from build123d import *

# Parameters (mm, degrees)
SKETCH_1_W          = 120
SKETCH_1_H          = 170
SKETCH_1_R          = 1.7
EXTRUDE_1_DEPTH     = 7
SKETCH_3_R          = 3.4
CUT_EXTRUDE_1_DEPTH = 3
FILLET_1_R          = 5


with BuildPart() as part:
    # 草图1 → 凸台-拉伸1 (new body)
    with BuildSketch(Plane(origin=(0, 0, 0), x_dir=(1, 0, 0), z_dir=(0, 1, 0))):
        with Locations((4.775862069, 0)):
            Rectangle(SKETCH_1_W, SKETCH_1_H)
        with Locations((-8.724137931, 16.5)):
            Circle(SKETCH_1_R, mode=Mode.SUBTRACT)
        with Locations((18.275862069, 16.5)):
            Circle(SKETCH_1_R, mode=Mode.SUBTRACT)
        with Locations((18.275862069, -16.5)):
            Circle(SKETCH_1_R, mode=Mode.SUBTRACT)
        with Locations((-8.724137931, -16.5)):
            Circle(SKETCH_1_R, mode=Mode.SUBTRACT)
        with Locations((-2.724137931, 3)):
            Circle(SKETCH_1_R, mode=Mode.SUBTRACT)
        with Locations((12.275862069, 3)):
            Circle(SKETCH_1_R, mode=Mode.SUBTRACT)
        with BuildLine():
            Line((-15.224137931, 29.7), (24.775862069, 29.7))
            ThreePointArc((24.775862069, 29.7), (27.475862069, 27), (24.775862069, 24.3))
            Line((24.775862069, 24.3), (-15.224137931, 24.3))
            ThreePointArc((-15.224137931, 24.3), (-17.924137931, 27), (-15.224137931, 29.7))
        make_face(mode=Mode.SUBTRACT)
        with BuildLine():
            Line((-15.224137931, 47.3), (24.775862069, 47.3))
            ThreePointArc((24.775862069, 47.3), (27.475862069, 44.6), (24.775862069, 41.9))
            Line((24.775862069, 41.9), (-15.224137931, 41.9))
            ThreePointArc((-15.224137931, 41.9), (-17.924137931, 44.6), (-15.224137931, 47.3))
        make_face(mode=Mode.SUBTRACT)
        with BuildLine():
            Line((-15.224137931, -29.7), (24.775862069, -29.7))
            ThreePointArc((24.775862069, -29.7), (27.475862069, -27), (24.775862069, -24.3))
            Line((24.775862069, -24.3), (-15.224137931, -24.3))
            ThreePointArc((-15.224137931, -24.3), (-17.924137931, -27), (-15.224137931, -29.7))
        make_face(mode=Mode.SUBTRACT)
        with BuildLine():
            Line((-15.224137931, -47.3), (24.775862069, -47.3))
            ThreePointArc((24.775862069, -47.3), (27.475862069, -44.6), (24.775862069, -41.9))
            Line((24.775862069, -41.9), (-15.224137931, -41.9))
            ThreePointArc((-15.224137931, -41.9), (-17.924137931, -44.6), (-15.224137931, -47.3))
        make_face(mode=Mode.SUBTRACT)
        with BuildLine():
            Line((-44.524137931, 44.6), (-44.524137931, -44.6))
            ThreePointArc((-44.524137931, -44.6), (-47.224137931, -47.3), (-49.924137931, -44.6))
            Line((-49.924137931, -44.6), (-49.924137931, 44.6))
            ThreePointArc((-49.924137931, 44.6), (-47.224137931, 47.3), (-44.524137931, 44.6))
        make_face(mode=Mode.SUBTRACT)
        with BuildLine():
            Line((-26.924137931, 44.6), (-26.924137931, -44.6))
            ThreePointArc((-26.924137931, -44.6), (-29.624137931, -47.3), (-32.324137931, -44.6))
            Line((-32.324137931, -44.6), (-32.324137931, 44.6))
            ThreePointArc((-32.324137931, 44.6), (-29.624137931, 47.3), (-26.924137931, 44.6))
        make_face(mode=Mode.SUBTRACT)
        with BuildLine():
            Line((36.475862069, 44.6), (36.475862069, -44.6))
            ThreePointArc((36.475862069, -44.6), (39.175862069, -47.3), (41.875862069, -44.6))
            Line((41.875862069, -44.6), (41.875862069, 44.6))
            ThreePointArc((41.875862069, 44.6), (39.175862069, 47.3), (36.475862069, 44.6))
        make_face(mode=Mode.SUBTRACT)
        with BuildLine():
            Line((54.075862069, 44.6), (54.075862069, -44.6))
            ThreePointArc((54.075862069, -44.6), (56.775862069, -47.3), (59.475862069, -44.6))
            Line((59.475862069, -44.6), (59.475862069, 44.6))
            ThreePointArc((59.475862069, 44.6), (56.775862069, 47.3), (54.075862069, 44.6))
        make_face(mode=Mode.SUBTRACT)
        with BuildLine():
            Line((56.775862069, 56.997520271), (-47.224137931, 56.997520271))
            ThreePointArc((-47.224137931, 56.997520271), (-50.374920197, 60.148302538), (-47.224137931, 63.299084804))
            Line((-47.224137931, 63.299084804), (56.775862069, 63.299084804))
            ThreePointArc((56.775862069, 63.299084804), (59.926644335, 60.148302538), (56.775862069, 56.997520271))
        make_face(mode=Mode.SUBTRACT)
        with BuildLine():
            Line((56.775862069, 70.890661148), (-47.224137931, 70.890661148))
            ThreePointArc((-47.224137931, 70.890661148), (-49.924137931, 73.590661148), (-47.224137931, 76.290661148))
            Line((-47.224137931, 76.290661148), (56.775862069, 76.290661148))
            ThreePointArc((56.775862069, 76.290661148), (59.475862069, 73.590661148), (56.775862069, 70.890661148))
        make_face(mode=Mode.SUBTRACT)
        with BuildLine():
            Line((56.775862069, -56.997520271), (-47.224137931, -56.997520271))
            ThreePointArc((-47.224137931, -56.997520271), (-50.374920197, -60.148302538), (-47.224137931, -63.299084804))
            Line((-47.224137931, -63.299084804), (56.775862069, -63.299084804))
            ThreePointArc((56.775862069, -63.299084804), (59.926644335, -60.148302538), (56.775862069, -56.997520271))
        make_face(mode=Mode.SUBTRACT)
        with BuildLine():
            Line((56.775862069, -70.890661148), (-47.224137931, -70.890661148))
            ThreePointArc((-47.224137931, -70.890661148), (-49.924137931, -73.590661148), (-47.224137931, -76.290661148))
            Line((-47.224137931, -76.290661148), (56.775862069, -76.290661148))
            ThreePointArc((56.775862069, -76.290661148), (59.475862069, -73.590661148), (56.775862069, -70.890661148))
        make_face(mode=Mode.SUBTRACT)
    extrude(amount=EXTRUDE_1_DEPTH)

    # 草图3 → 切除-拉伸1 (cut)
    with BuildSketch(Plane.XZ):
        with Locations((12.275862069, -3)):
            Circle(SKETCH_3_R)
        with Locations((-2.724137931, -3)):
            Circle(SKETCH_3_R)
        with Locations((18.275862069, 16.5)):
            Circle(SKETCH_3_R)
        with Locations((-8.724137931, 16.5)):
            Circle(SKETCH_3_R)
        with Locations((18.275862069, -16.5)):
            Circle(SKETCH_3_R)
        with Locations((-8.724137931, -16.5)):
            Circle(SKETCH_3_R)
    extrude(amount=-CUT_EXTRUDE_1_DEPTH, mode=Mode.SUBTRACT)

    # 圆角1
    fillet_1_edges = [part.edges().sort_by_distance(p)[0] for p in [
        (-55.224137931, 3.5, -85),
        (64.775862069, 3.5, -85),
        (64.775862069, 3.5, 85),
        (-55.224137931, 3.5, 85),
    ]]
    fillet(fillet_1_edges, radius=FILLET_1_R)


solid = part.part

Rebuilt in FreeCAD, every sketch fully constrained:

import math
import FreeCAD as App
import Part
import Sketcher

V = App.Vector
Q = App.Units.Quantity


def edges_at(feature, points):
    """Names of the edges that pass closest to the given points."""
    edges = feature.Shape.Edges
    near = lambda p: min(range(len(edges)), key=lambda i: edges[i].distToShape(Part.Vertex(*p))[0])
    return sorted({f"Edge{near(p) + 1}" for p in points})

doc = App.newDocument("Part")
body = doc.addObject("PartDesign::Body", "Body")

# Sketch on XZ plane
sketch1 = doc.addObject("Sketcher::SketchObject", "Sketch")
body.addObject(sketch1)
sketch1.AttachmentSupport = (doc.XZ_Plane, [""])
sketch1.MapMode = "FlatFace"
sketch1.addGeometry([
    Part.LineSegment(V(-55.2, -85, 0), V(-55.2, 85, 0)),  # 0
    Part.LineSegment(V(-55.2, 85, 0), V(64.8, 85, 0)),  # 1
    Part.LineSegment(V(64.8, 85, 0), V(64.8, -85, 0)),  # 2
    Part.LineSegment(V(64.8, -85, 0), V(-55.2, -85, 0)),  # 3
    Part.Circle(V(-8.7, 16.5, 0), V(0, 0, 1), 1.7),  # 4
    Part.LineSegment(V(-47.2, 70.9, 0), V(56.8, 70.9, 0)),  # 5
    Part.ArcOfCircle(Part.Circle(V(56.8, 73.6, 0), V(0, 0, 1), 2.7), math.radians(-90), math.radians(90)),  # 6
    Part.LineSegment(V(56.8, 76.3, 0), V(-47.2, 76.3, 0)),  # 7
    Part.ArcOfCircle(Part.Circle(V(-47.2, 73.6, 0), V(0, 0, 1), 2.7), math.radians(90), math.radians(270)),  # 8
    Part.LineSegment(V(-47.2, 57, 0), V(56.8, 57, 0)),  # 9
    Part.ArcOfCircle(Part.Circle(V(56.8, 60.1, 0), V(0, 0, 1), 3.2), math.radians(-90), math.radians(90)),  # 10
    Part.LineSegment(V(56.8, 63.3, 0), V(-47.2, 63.3, 0)),  # 11
    Part.ArcOfCircle(Part.Circle(V(-47.2, 60.1, 0), V(0, 0, 1), 3.2), math.radians(90), math.radians(270)),  # 12
    Part.LineSegment(V(24.8, 47.3, 0), V(-15.2, 47.3, 0)),  # 13
    Part.ArcOfCircle(Part.Circle(V(-15.2, 44.6, 0), V(0, 0, 1), 2.7), math.radians(90), math.radians(270)),  # 14
    Part.LineSegment(V(-15.2, 41.9, 0), V(24.8, 41.9, 0)),  # 15
    Part.ArcOfCircle(Part.Circle(V(24.8, 44.6, 0), V(0, 0, 1), 2.7), math.radians(-90), math.radians(90)),  # 16
    Part.LineSegment(V(24.8, 29.7, 0), V(-15.2, 29.7, 0)),  # 17
    Part.ArcOfCircle(Part.Circle(V(-15.2, 27, 0), V(0, 0, 1), 2.7), math.radians(90), math.radians(270)),  # 18
    Part.LineSegment(V(-15.2, 24.3, 0), V(24.8, 24.3, 0)),  # 19
    Part.ArcOfCircle(Part.Circle(V(24.8, 27, 0), V(0, 0, 1), 2.7), math.radians(-90), math.radians(90)),  # 20
    Part.Circle(V(18.3, 16.5, 0), V(0, 0, 1), 1.7),  # 21
    Part.ArcOfCircle(Part.Circle(V(-47.2, -44.6, 0), V(0, 0, 1), 2.7), math.radians(180), math.radians(360)),  # 22
    Part.LineSegment(V(-44.5, -44.6, 0), V(-44.5, 44.6, 0)),  # 23
    Part.ArcOfCircle(Part.Circle(V(-47.2, 44.6, 0), V(0, 0, 1), 2.7), math.radians(0), math.radians(180)),  # 24
    Part.LineSegment(V(-49.9, 44.6, 0), V(-49.9, -44.6, 0)),  # 25
    Part.ArcOfCircle(Part.Circle(V(-29.6, -44.6, 0), V(0, 0, 1), 2.7), math.radians(180), math.radians(360)),  # 26
    Part.LineSegment(V(-26.9, -44.6, 0), V(-26.9, 44.6, 0)),  # 27
    Part.ArcOfCircle(Part.Circle(V(-29.6, 44.6, 0), V(0, 0, 1), 2.7), math.radians(0), math.radians(180)),  # 28
    Part.LineSegment(V(-32.3, 44.6, 0), V(-32.3, -44.6, 0)),  # 29
    Part.Circle(V(-2.7, -3, 0), V(0, 0, 1), 1.7),  # 30
    Part.Circle(V(-8.7, -16.5, 0), V(0, 0, 1), 1.7),  # 31
    Part.Circle(V(12.3, -3, 0), V(0, 0, 1), 1.7),  # 32
    Part.Circle(V(18.3, -16.5, 0), V(0, 0, 1), 1.7),  # 33
    Part.ArcOfCircle(Part.Circle(V(-15.2, -27, 0), V(0, 0, 1), 2.7), math.radians(90), math.radians(270)),  # 34
    Part.LineSegment(V(-15.2, -29.7, 0), V(24.8, -29.7, 0)),  # 35
    Part.ArcOfCircle(Part.Circle(V(24.8, -27, 0), V(0, 0, 1), 2.7), math.radians(-90), math.radians(90)),  # 36
    Part.LineSegment(V(24.8, -24.3, 0), V(-15.2, -24.3, 0)),  # 37
    Part.LineSegment(V(36.5, 44.6, 0), V(36.5, -44.6, 0)),  # 38
    Part.ArcOfCircle(Part.Circle(V(39.2, -44.6, 0), V(0, 0, 1), 2.7), math.radians(180), math.radians(360)),  # 39
    Part.LineSegment(V(41.9, -44.6, 0), V(41.9, 44.6, 0)),  # 40
    Part.ArcOfCircle(Part.Circle(V(39.2, 44.6, 0), V(0, 0, 1), 2.7), math.radians(0), math.radians(180)),  # 41
    Part.LineSegment(V(54.1, 44.6, 0), V(54.1, -44.6, 0)),  # 42
    Part.ArcOfCircle(Part.Circle(V(56.8, -44.6, 0), V(0, 0, 1), 2.7), math.radians(180), math.radians(360)),  # 43
    Part.LineSegment(V(59.5, -44.6, 0), V(59.5, 44.6, 0)),  # 44
    Part.ArcOfCircle(Part.Circle(V(56.8, 44.6, 0), V(0, 0, 1), 2.7), math.radians(0), math.radians(180)),  # 45
    Part.ArcOfCircle(Part.Circle(V(-15.2, -44.6, 0), V(0, 0, 1), 2.7), math.radians(90), math.radians(270)),  # 46
    Part.LineSegment(V(-15.2, -47.3, 0), V(24.8, -47.3, 0)),  # 47
    Part.ArcOfCircle(Part.Circle(V(24.8, -44.6, 0), V(0, 0, 1), 2.7), math.radians(-90), math.radians(90)),  # 48
    Part.LineSegment(V(24.8, -41.9, 0), V(-15.2, -41.9, 0)),  # 49
    Part.ArcOfCircle(Part.Circle(V(56.8, -60.1, 0), V(0, 0, 1), 3.2), math.radians(-90), math.radians(90)),  # 50
    Part.LineSegment(V(56.8, -57, 0), V(-47.2, -57, 0)),  # 51
    Part.ArcOfCircle(Part.Circle(V(-47.2, -60.1, 0), V(0, 0, 1), 3.2), math.radians(90), math.radians(270)),  # 52
    Part.LineSegment(V(-47.2, -63.3, 0), V(56.8, -63.3, 0)),  # 53
    Part.ArcOfCircle(Part.Circle(V(56.8, -73.6, 0), V(0, 0, 1), 2.7), math.radians(-90), math.radians(90)),  # 54
    Part.LineSegment(V(56.8, -70.9, 0), V(-47.2, -70.9, 0)),  # 55
    Part.ArcOfCircle(Part.Circle(V(-47.2, -73.6, 0), V(0, 0, 1), 2.7), math.radians(90), math.radians(270)),  # 56
    Part.LineSegment(V(-47.2, -76.3, 0), V(56.8, -76.3, 0)),  # 57
], False)
sketch1.addConstraint([
    Sketcher.Constraint("Coincident", 0, 2, 1, 1),
    Sketcher.Constraint("Coincident", 1, 2, 2, 1),
    Sketcher.Constraint("Coincident", 2, 2, 3, 1),
    Sketcher.Constraint("Coincident", 3, 2, 0, 1),
    Sketcher.Constraint("Tangent", 5, 2, 6, 1),
    Sketcher.Constraint("Tangent", 6, 2, 7, 1),
    Sketcher.Constraint("Tangent", 7, 2, 8, 1),
    Sketcher.Constraint("Tangent", 8, 2, 5, 1),
    Sketcher.Constraint("Tangent", 9, 2, 10, 1),
    Sketcher.Constraint("Tangent", 10, 2, 11, 1),
    Sketcher.Constraint("Tangent", 11, 2, 12, 1),
    Sketcher.Constraint("Tangent", 12, 2, 9, 1),
    Sketcher.Constraint("Tangent", 13, 2, 14, 1),
    Sketcher.Constraint("Tangent", 14, 2, 15, 1),
    Sketcher.Constraint("Tangent", 15, 2, 16, 1),
    Sketcher.Constraint("Tangent", 16, 2, 13, 1),
    Sketcher.Constraint("Tangent", 17, 2, 18, 1),
    Sketcher.Constraint("Tangent", 18, 2, 19, 1),
    Sketcher.Constraint("Tangent", 19, 2, 20, 1),
    Sketcher.Constraint("Tangent", 20, 2, 17, 1),
    Sketcher.Constraint("Tangent", 22, 2, 23, 1),
    Sketcher.Constraint("Tangent", 23, 2, 24, 1),
    Sketcher.Constraint("Tangent", 24, 2, 25, 1),
    Sketcher.Constraint("Tangent", 25, 2, 22, 1),
    Sketcher.Constraint("Tangent", 26, 2, 27, 1),
    Sketcher.Constraint("Tangent", 27, 2, 28, 1),
    Sketcher.Constraint("Tangent", 28, 2, 29, 1),
    Sketcher.Constraint("Tangent", 29, 2, 26, 1),
    Sketcher.Constraint("Tangent", 34, 2, 35, 1),
    Sketcher.Constraint("Tangent", 35, 2, 36, 1),
    Sketcher.Constraint("Tangent", 36, 2, 37, 1),
    Sketcher.Constraint("Tangent", 37, 2, 34, 1),
    Sketcher.Constraint("Tangent", 38, 2, 39, 1),
    Sketcher.Constraint("Tangent", 39, 2, 40, 1),
    Sketcher.Constraint("Tangent", 40, 2, 41, 1),
    Sketcher.Constraint("Tangent", 41, 2, 38, 1),
    Sketcher.Constraint("Tangent", 42, 2, 43, 1),
    Sketcher.Constraint("Tangent", 43, 2, 44, 1),
    Sketcher.Constraint("Tangent", 44, 2, 45, 1),
    Sketcher.Constraint("Tangent", 45, 2, 42, 1),
    Sketcher.Constraint("Tangent", 46, 2, 47, 1),
    Sketcher.Constraint("Tangent", 47, 2, 48, 1),
    Sketcher.Constraint("Tangent", 48, 2, 49, 1),
    Sketcher.Constraint("Tangent", 49, 2, 46, 1),
    Sketcher.Constraint("Tangent", 50, 2, 51, 1),
    Sketcher.Constraint("Tangent", 51, 2, 52, 1),
    Sketcher.Constraint("Tangent", 52, 2, 53, 1),
    Sketcher.Constraint("Tangent", 53, 2, 50, 1),
    Sketcher.Constraint("Tangent", 54, 2, 55, 1),
    Sketcher.Constraint("Tangent", 55, 2, 56, 1),
    Sketcher.Constraint("Tangent", 56, 2, 57, 1),
    Sketcher.Constraint("Tangent", 57, 2, 54, 1),
    Sketcher.Constraint("Vertical", 0),
    Sketcher.Constraint("Horizontal", 1),
    Sketcher.Constraint("Vertical", 2),
    Sketcher.Constraint("Horizontal", 3),
    Sketcher.Constraint("Horizontal", 5),
    Sketcher.Constraint("Horizontal", 7),
    Sketcher.Constraint("Horizontal", 9),
    Sketcher.Constraint("Horizontal", 11),
    Sketcher.Constraint("Horizontal", 13),
    Sketcher.Constraint("Horizontal", 15),
    Sketcher.Constraint("Horizontal", 17),
    Sketcher.Constraint("Horizontal", 19),
    Sketcher.Constraint("Vertical", 23),
    Sketcher.Constraint("Vertical", 25),
    Sketcher.Constraint("Vertical", 27),
    Sketcher.Constraint("Vertical", 29),
    Sketcher.Constraint("Horizontal", 35),
    Sketcher.Constraint("Horizontal", 37),
    Sketcher.Constraint("Vertical", 38),
    Sketcher.Constraint("Vertical", 40),
    Sketcher.Constraint("Vertical", 42),
    Sketcher.Constraint("Vertical", 44),
    Sketcher.Constraint("Horizontal", 47),
    Sketcher.Constraint("Horizontal", 49),
    Sketcher.Constraint("Horizontal", 51),
    Sketcher.Constraint("Horizontal", 53),
    Sketcher.Constraint("Horizontal", 55),
    Sketcher.Constraint("Horizontal", 57),
    Sketcher.Constraint("Equal", 8, 14),
    Sketcher.Constraint("Equal", 16, 18),
    Sketcher.Constraint("Equal", 4, 21),
    Sketcher.Constraint("Equal", 20, 22),
    Sketcher.Constraint("Equal", 24, 26),
    Sketcher.Constraint("Equal", 21, 30),
    Sketcher.Constraint("Equal", 30, 31),
    Sketcher.Constraint("Equal", 31, 32),
    Sketcher.Constraint("Equal", 32, 33),
    Sketcher.Constraint("Equal", 28, 34),
    Sketcher.Constraint("Equal", 36, 39),
    Sketcher.Constraint("Equal", 41, 43),
    Sketcher.Constraint("Equal", 45, 46),
    Sketcher.Constraint("Equal", 12, 50),
    Sketcher.Constraint("Equal", 48, 54),
    Sketcher.Constraint("Symmetric", 4, 3, 31, 3, -1),
    Sketcher.Constraint("Symmetric", 21, 3, 33, 3, -1),
    Sketcher.Constraint("Symmetric", 18, 3, 34, 3, -1),
    Sketcher.Constraint("Symmetric", 14, 3, 46, 3, -1),
    Sketcher.Constraint("Symmetric", 10, 3, 50, 3, -1),
    Sketcher.Constraint("Symmetric", 6, 3, 54, 3, -1),
    Sketcher.Constraint("Horizontal", 4, 3, 21, 3),
    Sketcher.Constraint("Horizontal", 16, 3, 24, 3),
    Sketcher.Constraint("Horizontal", 22, 3, 26, 3),
    Sketcher.Constraint("Horizontal", 24, 3, 28, 3),
    Sketcher.Constraint("Horizontal", 30, 3, 32, 3),
    Sketcher.Constraint("Horizontal", 26, 3, 39, 3),
    Sketcher.Constraint("Horizontal", 28, 3, 41, 3),
    Sketcher.Constraint("Horizontal", 39, 3, 43, 3),
    Sketcher.Constraint("Horizontal", 41, 3, 45, 3),
    Sketcher.Constraint("Horizontal", 43, 3, 46, 3),
    Sketcher.Constraint("Vertical", 6, 3, 10, 3),
    Sketcher.Constraint("Vertical", 8, 3, 12, 3),
    Sketcher.Constraint("Vertical", 14, 3, 18, 3),
    Sketcher.Constraint("Vertical", 16, 3, 20, 3),
    Sketcher.Constraint("Vertical", 12, 3, 22, 3),
    Sketcher.Constraint("Vertical", 20, 3, 36, 3),
    Sketcher.Constraint("Vertical", 10, 3, 43, 3),
    Sketcher.Constraint("Vertical", 36, 3, 48, 3),
    Sketcher.Constraint("Vertical", 24, 3, 52, 3),
    Sketcher.Constraint("Vertical", 52, 3, 56, 3),
    Sketcher.Constraint("Diameter", 4, Q("3.4 mm")),
    Sketcher.Constraint("Radius", 6, Q("2.7 mm")),
    Sketcher.Constraint("DistanceX", 1, 1, 1, 2, Q("120 mm")),
    Sketcher.Constraint("DistanceX", 5, 1, 5, 2, Q("104 mm")),
    Sketcher.Constraint("DistanceX", 13, 2, 13, 1, Q("40 mm")),
    Sketcher.Constraint("DistanceY", 0, 1, 0, 2, Q("170 mm")),
    Sketcher.Constraint("DistanceY", 23, 1, 23, 2, Q("89.2 mm")),
    Sketcher.Constraint("DistanceY", -1, 1, 18, 3, Q("27 mm")),
    Sketcher.Constraint("DistanceY", 30, 3, -1, 1, Q("3 mm")),
    Sketcher.Constraint("DistanceY", -1, 1, 0, 2, Q("85 mm")),
    Sketcher.Constraint("DistanceY", -1, 1, 4, 3, Q("16.5 mm")),
    Sketcher.Constraint("Radius", 10, Q("3.150782 mm")),
    Sketcher.Constraint("DistanceY", -1, 1, 6, 3, Q("73.590661 mm")),
    Sketcher.Constraint("DistanceY", -1, 1, 9, 2, Q("56.99752 mm")),
    Sketcher.Constraint("DistanceX", 4, 3, -1, 1, Q("8.724138 mm")),
    Sketcher.Constraint("DistanceX", -1, 1, 6, 3, Q("56.775862 mm")),
    Sketcher.Constraint("DistanceX", 14, 3, -1, 1, Q("15.224138 mm")),
    Sketcher.Constraint("DistanceX", -1, 1, 21, 3, Q("18.275862 mm")),
    Sketcher.Constraint("DistanceX", 26, 3, -1, 1, Q("29.624138 mm")),
    Sketcher.Constraint("DistanceX", 30, 3, -1, 1, Q("2.724138 mm")),
    Sketcher.Constraint("DistanceX", -1, 1, 32, 3, Q("12.275862 mm")),
    Sketcher.Constraint("DistanceX", -1, 1, 39, 3, Q("39.175862 mm")),
    Sketcher.Constraint("DistanceX", 0, 2, -1, 1, Q("55.224138 mm")),
])
pad1 = doc.addObject("PartDesign::Pad", "Pad")
body.addObject(pad1)
pad1.Profile = sketch1
pad1.Length = 7
pad1.Reversed = True

# Sketch on XZ plane
sketch2 = doc.addObject("Sketcher::SketchObject", "Sketch001")
body.addObject(sketch2)
sketch2.AttachmentSupport = (doc.XZ_Plane, [""])
sketch2.MapMode = "FlatFace"
sketch2.addGeometry([
    Part.Circle(V(12.3, -3, 0), V(0, 0, 1), 3.4),  # 0
    Part.Circle(V(-2.7, -3, 0), V(0, 0, 1), 3.4),  # 1
    Part.Circle(V(18.3, 16.5, 0), V(0, 0, 1), 3.4),  # 2
    Part.Circle(V(-8.7, 16.5, 0), V(0, 0, 1), 3.4),  # 3
    Part.Circle(V(18.3, -16.5, 0), V(0, 0, 1), 3.4),  # 4
    Part.Circle(V(-8.7, -16.5, 0), V(0, 0, 1), 3.4),  # 5
], False)
sketch2.addConstraint([
    Sketcher.Constraint("Equal", 0, 1),
    Sketcher.Constraint("Equal", 1, 2),
    Sketcher.Constraint("Equal", 2, 3),
    Sketcher.Constraint("Equal", 3, 4),
    Sketcher.Constraint("Equal", 4, 5),
    Sketcher.Constraint("Symmetric", 2, 3, 4, 3, -1),
    Sketcher.Constraint("Symmetric", 3, 3, 5, 3, -1),
    Sketcher.Constraint("Horizontal", 0, 3, 1, 3),
    Sketcher.Constraint("Horizontal", 2, 3, 3, 3),
    Sketcher.Constraint("Diameter", 0, Q("6.8 mm")),
    Sketcher.Constraint("DistanceY", 0, 3, -1, 1, Q("3 mm")),
    Sketcher.Constraint("DistanceX", 1, 3, 0, 3, Q("15 mm")),
    Sketcher.Constraint("DistanceX", 0, 3, 2, 3, Q("6 mm")),
    Sketcher.Constraint("DistanceX", 3, 3, 1, 3, Q("6 mm")),
    Sketcher.Constraint("DistanceY", 4, 3, 2, 3, Q("33 mm")),
    Sketcher.Constraint("DistanceX", -1, 1, 0, 3, Q("12.275862 mm")),
])
pocket1 = doc.addObject("PartDesign::Pocket", "Pocket")
body.addObject(pocket1)
pocket1.Profile = sketch2
pocket1.Length = 3
doc.recompute()

fillet = doc.addObject("PartDesign::Fillet", "Fillet")
body.addObject(fillet)
fillet.Base = (pocket1, edges_at(pocket1, [
    (-55.224, 3.5, -85),
    (64.776, 3.5, -85),
    (64.776, 3.5, 85),
    (-55.224, 3.5, 85),
]))
fillet.Radius = 5

doc.recompute()
